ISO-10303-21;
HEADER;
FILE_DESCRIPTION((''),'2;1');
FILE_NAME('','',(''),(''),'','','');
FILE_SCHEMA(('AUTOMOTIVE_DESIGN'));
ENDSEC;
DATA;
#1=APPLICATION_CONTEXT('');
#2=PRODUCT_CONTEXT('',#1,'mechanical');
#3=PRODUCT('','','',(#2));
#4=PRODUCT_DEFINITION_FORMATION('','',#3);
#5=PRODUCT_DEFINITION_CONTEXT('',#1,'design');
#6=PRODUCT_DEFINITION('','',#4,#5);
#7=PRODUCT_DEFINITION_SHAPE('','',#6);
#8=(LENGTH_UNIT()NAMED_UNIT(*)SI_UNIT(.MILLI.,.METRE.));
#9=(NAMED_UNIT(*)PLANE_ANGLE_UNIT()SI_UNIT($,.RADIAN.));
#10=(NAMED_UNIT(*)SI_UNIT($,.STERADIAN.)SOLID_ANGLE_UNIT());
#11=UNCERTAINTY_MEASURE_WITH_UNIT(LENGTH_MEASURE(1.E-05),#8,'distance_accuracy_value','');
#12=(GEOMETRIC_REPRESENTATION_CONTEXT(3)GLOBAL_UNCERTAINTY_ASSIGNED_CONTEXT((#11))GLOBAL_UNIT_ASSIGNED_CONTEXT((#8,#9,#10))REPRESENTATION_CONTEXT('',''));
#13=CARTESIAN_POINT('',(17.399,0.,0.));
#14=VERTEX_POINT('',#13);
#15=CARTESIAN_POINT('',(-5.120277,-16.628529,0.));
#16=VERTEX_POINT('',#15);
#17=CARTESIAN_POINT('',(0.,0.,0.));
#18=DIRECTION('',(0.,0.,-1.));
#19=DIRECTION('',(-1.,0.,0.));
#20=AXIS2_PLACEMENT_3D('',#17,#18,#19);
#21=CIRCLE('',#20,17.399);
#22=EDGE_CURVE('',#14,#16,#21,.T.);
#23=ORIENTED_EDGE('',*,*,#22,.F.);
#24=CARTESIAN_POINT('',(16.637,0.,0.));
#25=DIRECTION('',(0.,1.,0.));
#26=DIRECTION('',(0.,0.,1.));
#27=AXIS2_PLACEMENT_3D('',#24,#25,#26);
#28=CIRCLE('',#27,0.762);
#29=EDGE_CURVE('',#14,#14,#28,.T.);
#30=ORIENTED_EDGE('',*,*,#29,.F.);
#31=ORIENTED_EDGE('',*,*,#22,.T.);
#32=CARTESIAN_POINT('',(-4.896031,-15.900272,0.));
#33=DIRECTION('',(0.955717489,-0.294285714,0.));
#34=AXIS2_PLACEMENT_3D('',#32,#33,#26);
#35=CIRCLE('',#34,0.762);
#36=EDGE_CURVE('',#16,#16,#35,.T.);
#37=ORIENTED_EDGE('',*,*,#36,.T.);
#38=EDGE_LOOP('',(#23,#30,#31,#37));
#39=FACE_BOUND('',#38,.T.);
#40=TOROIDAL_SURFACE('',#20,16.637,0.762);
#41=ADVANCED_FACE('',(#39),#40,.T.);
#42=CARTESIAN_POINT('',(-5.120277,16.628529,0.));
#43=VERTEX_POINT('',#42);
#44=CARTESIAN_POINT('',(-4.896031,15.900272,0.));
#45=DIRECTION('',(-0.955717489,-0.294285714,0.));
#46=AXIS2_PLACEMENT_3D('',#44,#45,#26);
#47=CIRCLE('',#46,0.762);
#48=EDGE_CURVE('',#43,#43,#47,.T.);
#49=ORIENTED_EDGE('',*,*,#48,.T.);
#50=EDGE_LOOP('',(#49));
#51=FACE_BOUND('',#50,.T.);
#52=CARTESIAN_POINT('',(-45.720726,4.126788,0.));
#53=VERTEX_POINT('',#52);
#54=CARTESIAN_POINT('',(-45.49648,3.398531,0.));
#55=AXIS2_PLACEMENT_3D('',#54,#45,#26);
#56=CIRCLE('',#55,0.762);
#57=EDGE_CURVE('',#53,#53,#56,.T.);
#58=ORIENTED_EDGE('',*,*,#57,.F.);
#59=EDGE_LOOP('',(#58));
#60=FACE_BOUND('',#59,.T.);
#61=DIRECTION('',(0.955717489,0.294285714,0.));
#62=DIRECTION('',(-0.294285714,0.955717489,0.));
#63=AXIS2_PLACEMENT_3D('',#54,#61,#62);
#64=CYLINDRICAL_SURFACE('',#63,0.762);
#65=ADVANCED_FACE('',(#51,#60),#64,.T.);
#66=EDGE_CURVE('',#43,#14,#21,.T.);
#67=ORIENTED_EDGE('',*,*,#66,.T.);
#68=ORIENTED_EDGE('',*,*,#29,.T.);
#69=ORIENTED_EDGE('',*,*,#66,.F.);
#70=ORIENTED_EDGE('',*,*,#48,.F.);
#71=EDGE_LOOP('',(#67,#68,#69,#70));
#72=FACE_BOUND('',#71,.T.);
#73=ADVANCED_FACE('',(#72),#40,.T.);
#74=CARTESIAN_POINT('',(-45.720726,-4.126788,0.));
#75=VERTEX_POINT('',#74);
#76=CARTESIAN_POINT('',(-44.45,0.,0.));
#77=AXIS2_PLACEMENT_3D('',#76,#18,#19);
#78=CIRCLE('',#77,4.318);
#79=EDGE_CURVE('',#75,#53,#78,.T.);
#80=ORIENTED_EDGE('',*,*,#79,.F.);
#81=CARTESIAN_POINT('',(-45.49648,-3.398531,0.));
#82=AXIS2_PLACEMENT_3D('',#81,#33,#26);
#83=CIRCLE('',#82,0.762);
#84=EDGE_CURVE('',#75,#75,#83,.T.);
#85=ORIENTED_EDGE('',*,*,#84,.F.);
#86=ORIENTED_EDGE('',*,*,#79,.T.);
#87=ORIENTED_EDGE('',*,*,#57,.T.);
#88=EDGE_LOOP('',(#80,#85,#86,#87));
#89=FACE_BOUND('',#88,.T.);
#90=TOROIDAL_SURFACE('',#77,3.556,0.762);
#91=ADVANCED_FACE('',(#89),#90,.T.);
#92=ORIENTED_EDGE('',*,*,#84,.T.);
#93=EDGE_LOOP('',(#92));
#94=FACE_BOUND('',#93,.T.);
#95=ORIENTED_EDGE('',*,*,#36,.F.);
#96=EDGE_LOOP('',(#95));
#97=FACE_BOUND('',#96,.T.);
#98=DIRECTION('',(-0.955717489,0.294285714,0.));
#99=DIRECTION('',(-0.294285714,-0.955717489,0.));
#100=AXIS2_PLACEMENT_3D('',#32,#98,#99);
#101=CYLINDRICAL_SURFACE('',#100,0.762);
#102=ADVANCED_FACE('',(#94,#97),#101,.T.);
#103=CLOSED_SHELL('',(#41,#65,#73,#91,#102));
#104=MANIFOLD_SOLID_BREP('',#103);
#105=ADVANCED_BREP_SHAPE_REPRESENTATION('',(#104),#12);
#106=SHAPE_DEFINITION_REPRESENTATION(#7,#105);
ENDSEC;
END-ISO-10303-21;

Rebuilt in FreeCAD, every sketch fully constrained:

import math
import FreeCAD as App
import Part
import Sketcher
Q = App.Units.Quantity

doc = App.newDocument("Part")
params = doc.addObject("Spreadsheet::Sheet", "Params")
for row, (alias, value) in enumerate([
    ("sketch1_diameter", "0.06 in"),
    ("sketch2_radius", "0.11 in"),
    ("sketch2_radius2", "0.625 in"),
], start=1):
    params.set(f"A{row}", alias)
    params.set(f"B{row}", "=" + value)
    params.setAlias(f"B{row}", alias)

body = doc.addObject("PartDesign::Body", "Body")

sketch1 = body.newObject("Sketcher::SketchObject", "Sketch")
sketch1.AttachmentSupport = (doc.getObject("XZ_Plane"), [""])
sketch1.MapMode = "FlatFace"
sketch1.addGeometry(Part.Circle(App.Vector(16.6, 0, 0), App.Vector(0, 0, 1), 0.8), False)
sketch1.addConstraint([
    Sketcher.Constraint("PointOnObject", 0, 3, -1),
    Sketcher.Constraint("Diameter", 0, Q("0.06 in")),
    Sketcher.Constraint("DistanceX", -1, 1, 0, 3, Q("0.655 in")),
])
sketch1.setExpression("Constraints[1]", "Params.sketch1_diameter")

sketch2 = body.newObject("Sketcher::SketchObject", "Sketch001")
sketch2.AttachmentSupport = (doc.getObject("XY_Plane"), [""])
sketch2.MapMode = "FlatFace"
sketch2.addGeometry([
    Part.LineSegment(App.Vector(-45.3, 2.7, 0), App.Vector(-4.7, 15.2, 0)),
    Part.ArcOfCircle(Part.Circle(App.Vector(0, 0, 0), App.Vector(0, 0, 1), 15.9), math.radians(-107), math.radians(107)),
    Part.LineSegment(App.Vector(-4.7, -15.2, 0), App.Vector(-45.3, -2.7, 0)),
    Part.ArcOfCircle(Part.Circle(App.Vector(-44.4, 0, 0), App.Vector(0, 0, 1), 2.8), math.radians(107), math.radians(253)),
], False)
sketch2.addConstraint([
    Sketcher.Constraint("Tangent", 0, 2, 1, 2),
    Sketcher.Constraint("Tangent", 1, 1, 2, 1),
    Sketcher.Constraint("Tangent", 2, 2, 3, 2),
    Sketcher.Constraint("Tangent", 3, 1, 0, 1),
    Sketcher.Constraint("Coincident", 1, 3, -1, 1),
    Sketcher.Constraint("PointOnObject", 3, 3, -1),
    Sketcher.Constraint("Radius", 3, Q("0.11 in")),
    Sketcher.Constraint("Radius", 1, Q("0.625 in")),
    Sketcher.Constraint("DistanceX", 3, 3, -1, 1, Q("1.75 in")),
])
sketch2.setExpression("Constraints[6]", "Params.sketch2_radius")
sketch2.setExpression("Constraints[7]", "Params.sketch2_radius2")
doc.recompute()

additivepipe = body.newObject("PartDesign::AdditivePipe", "AdditivePipe")
additivepipe.Profile = sketch1
additivepipe.Spine = (sketch2, ["Edge1", "Edge2", "Edge3", "Edge4"])

doc.recompute()
